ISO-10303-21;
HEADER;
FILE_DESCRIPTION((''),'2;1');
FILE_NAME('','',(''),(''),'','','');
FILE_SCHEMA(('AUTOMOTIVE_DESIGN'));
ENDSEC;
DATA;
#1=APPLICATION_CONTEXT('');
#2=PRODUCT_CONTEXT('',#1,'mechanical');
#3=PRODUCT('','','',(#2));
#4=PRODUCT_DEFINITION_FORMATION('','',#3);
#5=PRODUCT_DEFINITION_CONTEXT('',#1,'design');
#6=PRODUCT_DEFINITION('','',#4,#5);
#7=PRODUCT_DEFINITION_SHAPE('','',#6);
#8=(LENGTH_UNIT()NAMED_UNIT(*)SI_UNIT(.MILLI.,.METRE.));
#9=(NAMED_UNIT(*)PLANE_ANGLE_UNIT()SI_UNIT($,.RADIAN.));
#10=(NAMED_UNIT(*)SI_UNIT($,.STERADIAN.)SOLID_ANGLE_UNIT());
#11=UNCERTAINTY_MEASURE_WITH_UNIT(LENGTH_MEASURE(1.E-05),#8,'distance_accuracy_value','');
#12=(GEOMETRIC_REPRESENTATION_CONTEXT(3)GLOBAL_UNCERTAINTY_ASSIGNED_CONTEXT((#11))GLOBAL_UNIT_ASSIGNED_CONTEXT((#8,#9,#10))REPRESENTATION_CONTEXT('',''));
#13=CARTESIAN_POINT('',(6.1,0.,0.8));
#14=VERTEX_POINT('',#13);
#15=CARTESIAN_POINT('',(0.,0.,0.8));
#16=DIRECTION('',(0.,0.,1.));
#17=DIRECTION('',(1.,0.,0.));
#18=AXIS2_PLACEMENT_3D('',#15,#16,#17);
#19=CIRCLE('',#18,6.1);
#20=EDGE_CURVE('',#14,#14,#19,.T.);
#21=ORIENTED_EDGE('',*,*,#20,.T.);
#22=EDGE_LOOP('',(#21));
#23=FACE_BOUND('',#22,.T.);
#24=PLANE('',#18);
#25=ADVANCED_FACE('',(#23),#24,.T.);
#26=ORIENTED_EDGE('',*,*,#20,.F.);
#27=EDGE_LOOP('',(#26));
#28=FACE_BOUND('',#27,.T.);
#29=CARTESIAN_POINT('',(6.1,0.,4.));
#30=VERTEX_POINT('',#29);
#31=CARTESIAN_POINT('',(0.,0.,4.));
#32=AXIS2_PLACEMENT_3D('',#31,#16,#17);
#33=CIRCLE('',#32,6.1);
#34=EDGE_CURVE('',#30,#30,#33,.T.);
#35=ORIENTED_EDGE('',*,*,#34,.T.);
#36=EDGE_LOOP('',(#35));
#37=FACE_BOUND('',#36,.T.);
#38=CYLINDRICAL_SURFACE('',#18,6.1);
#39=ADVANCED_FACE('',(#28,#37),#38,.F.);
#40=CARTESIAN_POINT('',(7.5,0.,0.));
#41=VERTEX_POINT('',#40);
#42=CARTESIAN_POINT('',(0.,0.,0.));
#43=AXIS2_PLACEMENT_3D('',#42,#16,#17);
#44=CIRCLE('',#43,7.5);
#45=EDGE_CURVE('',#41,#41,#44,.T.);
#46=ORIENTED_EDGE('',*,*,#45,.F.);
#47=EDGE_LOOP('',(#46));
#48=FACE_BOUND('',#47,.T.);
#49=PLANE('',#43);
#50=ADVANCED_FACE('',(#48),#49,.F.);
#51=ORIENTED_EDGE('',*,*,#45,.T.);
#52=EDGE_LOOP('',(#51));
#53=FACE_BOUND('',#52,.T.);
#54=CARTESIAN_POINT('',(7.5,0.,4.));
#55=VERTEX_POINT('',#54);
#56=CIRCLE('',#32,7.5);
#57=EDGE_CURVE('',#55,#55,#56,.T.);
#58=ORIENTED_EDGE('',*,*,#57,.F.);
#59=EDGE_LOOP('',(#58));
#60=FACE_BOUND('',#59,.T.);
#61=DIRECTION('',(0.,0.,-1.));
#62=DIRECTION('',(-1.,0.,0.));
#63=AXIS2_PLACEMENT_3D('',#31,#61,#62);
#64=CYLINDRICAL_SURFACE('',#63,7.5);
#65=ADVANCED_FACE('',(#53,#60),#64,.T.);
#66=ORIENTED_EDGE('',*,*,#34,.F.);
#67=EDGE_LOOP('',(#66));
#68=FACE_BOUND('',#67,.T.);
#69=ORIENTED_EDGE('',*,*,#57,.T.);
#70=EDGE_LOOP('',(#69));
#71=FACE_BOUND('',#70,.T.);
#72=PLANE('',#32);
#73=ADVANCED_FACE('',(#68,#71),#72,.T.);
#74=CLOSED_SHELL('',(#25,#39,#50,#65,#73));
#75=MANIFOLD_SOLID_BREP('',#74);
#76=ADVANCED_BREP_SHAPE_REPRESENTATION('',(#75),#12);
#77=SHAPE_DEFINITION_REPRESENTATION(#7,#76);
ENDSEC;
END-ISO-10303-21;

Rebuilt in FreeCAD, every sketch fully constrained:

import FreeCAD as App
import Part
import Sketcher

doc = App.newDocument("Part")
body = doc.addObject("PartDesign::Body", "Body")

sketch1 = doc.addObject("Sketcher::SketchObject", "Sketch")
body.addObject(sketch1)
sketch1.AttachmentSupport = (doc.XY_Plane, [""])
sketch1.MapMode = "FlatFace"
sketch1.addGeometry(Part.Circle(App.Vector(0, 0, 0), App.Vector(0, 0, 1), 7.5), False)
sketch1.addConstraint(Sketcher.Constraint("Coincident", 0, 3, -1, 1))
sketch1.addConstraint(Sketcher.Constraint("Diameter", 0, 15.0))
pad1 = doc.addObject("PartDesign::Pad", "Pad")
body.addObject(pad1)
pad1.Profile = sketch1
pad1.Length = 4

sketch2 = doc.addObject("Sketcher::SketchObject", "Sketch001")
body.addObject(sketch2)
sketch2.AttachmentSupport = (doc.XY_Plane, [""])
sketch2.MapMode = "FlatFace"
sketch2.AttachmentOffset = App.Placement(App.Vector(0, 0, 4), App.Rotation())
sketch2.addGeometry(Part.Circle(App.Vector(0, 0, 0), App.Vector(0, 0, 1), 6.1), False)
sketch2.addConstraint(Sketcher.Constraint("Coincident", 0, 3, -1, 1))
sketch2.addConstraint(Sketcher.Constraint("Diameter", 0, 12.2))
pocket1 = doc.addObject("PartDesign::Pocket", "Pocket")
body.addObject(pocket1)
pocket1.Profile = sketch2
pocket1.Length = 3.2

doc.recompute()
